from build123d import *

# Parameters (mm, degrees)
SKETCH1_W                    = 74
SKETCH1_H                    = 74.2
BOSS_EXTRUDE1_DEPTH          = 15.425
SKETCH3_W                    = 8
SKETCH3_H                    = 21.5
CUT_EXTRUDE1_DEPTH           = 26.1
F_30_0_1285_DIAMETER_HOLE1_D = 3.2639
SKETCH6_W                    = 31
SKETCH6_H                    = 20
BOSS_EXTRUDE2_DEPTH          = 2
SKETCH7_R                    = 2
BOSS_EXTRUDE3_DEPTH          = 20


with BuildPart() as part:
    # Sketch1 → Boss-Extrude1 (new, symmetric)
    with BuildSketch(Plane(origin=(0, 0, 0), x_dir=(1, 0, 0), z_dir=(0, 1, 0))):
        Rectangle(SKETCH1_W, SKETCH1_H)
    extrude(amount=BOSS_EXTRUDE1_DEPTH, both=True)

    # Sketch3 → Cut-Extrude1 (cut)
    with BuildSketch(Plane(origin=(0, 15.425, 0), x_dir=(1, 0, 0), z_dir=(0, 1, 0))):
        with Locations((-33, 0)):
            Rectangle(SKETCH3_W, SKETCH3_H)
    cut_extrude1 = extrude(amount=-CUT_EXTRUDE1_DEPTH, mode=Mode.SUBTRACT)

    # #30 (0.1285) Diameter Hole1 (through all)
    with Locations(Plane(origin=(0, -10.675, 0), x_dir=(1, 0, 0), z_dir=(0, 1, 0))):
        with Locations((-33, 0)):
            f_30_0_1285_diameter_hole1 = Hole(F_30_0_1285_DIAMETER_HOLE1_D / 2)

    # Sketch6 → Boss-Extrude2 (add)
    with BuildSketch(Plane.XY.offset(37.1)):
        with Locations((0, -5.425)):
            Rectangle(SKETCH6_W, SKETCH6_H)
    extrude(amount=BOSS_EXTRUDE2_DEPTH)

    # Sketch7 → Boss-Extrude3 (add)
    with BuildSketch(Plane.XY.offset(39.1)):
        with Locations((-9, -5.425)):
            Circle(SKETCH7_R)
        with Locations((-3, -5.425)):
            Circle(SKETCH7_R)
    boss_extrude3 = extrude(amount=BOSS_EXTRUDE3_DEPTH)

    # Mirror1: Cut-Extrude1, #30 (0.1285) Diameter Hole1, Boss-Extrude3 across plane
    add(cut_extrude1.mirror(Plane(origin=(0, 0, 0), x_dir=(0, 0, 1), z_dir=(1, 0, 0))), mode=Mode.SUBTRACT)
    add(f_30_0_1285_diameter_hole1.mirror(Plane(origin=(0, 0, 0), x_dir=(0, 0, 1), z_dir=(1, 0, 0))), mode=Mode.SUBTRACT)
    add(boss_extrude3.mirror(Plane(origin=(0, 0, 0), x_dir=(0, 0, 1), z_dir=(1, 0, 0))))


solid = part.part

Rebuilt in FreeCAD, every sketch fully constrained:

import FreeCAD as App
import Part
import Sketcher

V = App.Vector

doc = App.newDocument("Part")
body = doc.addObject("PartDesign::Body", "Body")

# Sketch on XZ plane
sketch1 = doc.addObject("Sketcher::SketchObject", "Sketch")
body.addObject(sketch1)
sketch1.AttachmentSupport = (doc.XZ_Plane, [""])
sketch1.MapMode = "FlatFace"
sketch1.addGeometry(Part.LineSegment(V(-37, -37, 0), V(-37, 37, 0)), False)
sketch1.addGeometry(Part.LineSegment(V(-37, 37, 0), V(37, 37, 0)), False)
sketch1.addGeometry(Part.LineSegment(V(37, 37, 0), V(37, -37, 0)), False)
sketch1.addGeometry(Part.LineSegment(V(37, -37, 0), V(-37, -37, 0)), False)
sketch1.addConstraint(Sketcher.Constraint("Coincident", 0, 2, 1, 1))
sketch1.addConstraint(Sketcher.Constraint("Coincident", 1, 2, 2, 1))
sketch1.addConstraint(Sketcher.Constraint("Coincident", 2, 2, 3, 1))
sketch1.addConstraint(Sketcher.Constraint("Coincident", 3, 2, 0, 1))
sketch1.addConstraint(Sketcher.Constraint("Vertical", 0))
sketch1.addConstraint(Sketcher.Constraint("Horizontal", 1))
sketch1.addConstraint(Sketcher.Constraint("Vertical", 2))
sketch1.addConstraint(Sketcher.Constraint("Horizontal", 3))
sketch1.addConstraint(Sketcher.Constraint("Symmetric", 0, 2, 2, 2, -1, 1))
sketch1.addConstraint(Sketcher.Constraint("DistanceX", 1, 1, 1, 2, 74.0))
sketch1.addConstraint(Sketcher.Constraint("DistanceY", 0, 1, 0, 2, 74.2))
pad1 = doc.addObject("PartDesign::Pad", "Pad")
body.addObject(pad1)
pad1.Profile = sketch1
pad1.Length = 30.85
pad1.Midplane = True

# Sketch on XZ plane
sketch2 = doc.addObject("Sketcher::SketchObject", "Sketch001")
body.addObject(sketch2)
sketch2.AttachmentSupport = (doc.XZ_Plane, [""])
sketch2.MapMode = "FlatFace"
sketch2.AttachmentOffset = App.Placement(V(0, 0, -15.425), App.Rotation())
sketch2.addGeometry(Part.LineSegment(V(-37, -11, 0), V(-37, 11, 0)), False)
sketch2.addGeometry(Part.LineSegment(V(-37, 11, 0), V(-29, 11, 0)), False)
sketch2.addGeometry(Part.LineSegment(V(-29, 11, 0), V(-29, -11, 0)), False)
sketch2.addGeometry(Part.LineSegment(V(-29, -11, 0), V(-37, -11, 0)), False)
sketch2.addConstraint(Sketcher.Constraint("Coincident", 0, 2, 1, 1))
sketch2.addConstraint(Sketcher.Constraint("Coincident", 1, 2, 2, 1))
sketch2.addConstraint(Sketcher.Constraint("Coincident", 2, 2, 3, 1))
sketch2.addConstraint(Sketcher.Constraint("Coincident", 3, 2, 0, 1))
sketch2.addConstraint(Sketcher.Constraint("Vertical", 0))
sketch2.addConstraint(Sketcher.Constraint("Horizontal", 1))
sketch2.addConstraint(Sketcher.Constraint("Vertical", 2))
sketch2.addConstraint(Sketcher.Constraint("Horizontal", 3))
sketch2.addConstraint(Sketcher.Constraint("DistanceX", 1, 1, 1, 2, 8.0))
sketch2.addConstraint(Sketcher.Constraint("DistanceY", 0, 1, 0, 2, 21.5))
sketch2.addConstraint(Sketcher.Constraint("DistanceX", 0, 2, -1, 1, 37.0))
sketch2.addConstraint(Sketcher.Constraint("DistanceY", -1, 1, 0, 2, 10.75))
pocket1 = doc.addObject("PartDesign::Pocket", "Pocket")
body.addObject(pocket1)
pocket1.Profile = sketch2
pocket1.Length = 26.1
pocket1.Reversed = True

# Sketch on XZ plane
sketch3 = doc.addObject("Sketcher::SketchObject", "Sketch002")
body.addObject(sketch3)
sketch3.AttachmentSupport = (doc.XZ_Plane, [""])
sketch3.MapMode = "FlatFace"
sketch3.AttachmentOffset = App.Placement(V(0, 0, 10.675), App.Rotation())
sketch3.addGeometry(Part.Circle(V(-33, 0, 0), V(0, 0, 1), 1.6), False)
sketch3.addConstraint(Sketcher.Constraint("PointOnObject", 0, 3, -1))
sketch3.addConstraint(Sketcher.Constraint("DistanceX", 0, 3, -1, 1, 33.0))
sketch3.addConstraint(Sketcher.Constraint("Diameter", 0, 3.2639))
doc.recompute()
hole = doc.addObject("PartDesign::Hole", "Hole")
body.addObject(hole)
hole.Profile = sketch3
hole.ThreadType = "None"
hole.Diameter = 3.2639
hole.DepthType = "ThroughAll"
hole.Reversed = True

# Sketch on XY plane
sketch4 = doc.addObject("Sketcher::SketchObject", "Sketch003")
body.addObject(sketch4)
sketch4.AttachmentSupport = (doc.XY_Plane, [""])
sketch4.MapMode = "FlatFace"
sketch4.AttachmentOffset = App.Placement(V(0, 0, 37.1), App.Rotation())
sketch4.addGeometry(Part.LineSegment(V(-16, 5, 0), V(-16, -15, 0)), False)
sketch4.addGeometry(Part.LineSegment(V(-16, -15, 0), V(16, -15, 0)), False)
sketch4.addGeometry(Part.LineSegment(V(16, -15, 0), V(16, 5, 0)), False)
sketch4.addGeometry(Part.LineSegment(V(16, 5, 0), V(-16, 5, 0)), False)
sketch4.addConstraint(Sketcher.Constraint("Coincident", 0, 2, 1, 1))
sketch4.addConstraint(Sketcher.Constraint("Coincident", 1, 2, 2, 1))
sketch4.addConstraint(Sketcher.Constraint("Coincident", 2, 2, 3, 1))
sketch4.addConstraint(Sketcher.Constraint("Coincident", 3, 2, 0, 1))
sketch4.addConstraint(Sketcher.Constraint("Vertical", 0))
sketch4.addConstraint(Sketcher.Constraint("Horizontal", 1))
sketch4.addConstraint(Sketcher.Constraint("Vertical", 2))
sketch4.addConstraint(Sketcher.Constraint("Horizontal", 3))
sketch4.addConstraint(Sketcher.Constraint("DistanceX", 1, 1, 1, 2, 31.0))
sketch4.addConstraint(Sketcher.Constraint("DistanceY", 0, 2, 0, 1, 20.0))
sketch4.addConstraint(Sketcher.Constraint("DistanceX", 0, 2, -1, 1, 15.5))
sketch4.addConstraint(Sketcher.Constraint("DistanceY", 0, 2, -1, 1, 15.425))
pad2 = doc.addObject("PartDesign::Pad", "Pad001")
body.addObject(pad2)
pad2.Profile = sketch4
pad2.Length = 2

# Sketch on XY plane
sketch5 = doc.addObject("Sketcher::SketchObject", "Sketch004")
body.addObject(sketch5)
sketch5.AttachmentSupport = (doc.XY_Plane, [""])
sketch5.MapMode = "FlatFace"
sketch5.AttachmentOffset = App.Placement(V(0, 0, 39.1), App.Rotation())
sketch5.addGeometry(Part.Circle(V(-9, -5.4, 0), V(0, 0, 1), 2), False)
sketch5.addGeometry(Part.Circle(V(-3, -5.4, 0), V(0, 0, 1), 2), False)
sketch5.addConstraint(Sketcher.Constraint("Equal", 0, 1))
sketch5.addConstraint(Sketcher.Constraint("Horizontal", 0, 3, 1, 3))
sketch5.addConstraint(Sketcher.Constraint("Diameter", 0, 4.0))
sketch5.addConstraint(Sketcher.Constraint("DistanceX", 0, 3, -1, 1, 9.0))
sketch5.addConstraint(Sketcher.Constraint("DistanceX", 1, 3, -1, 1, 3.0))
sketch5.addConstraint(Sketcher.Constraint("DistanceY", 0, 3, -1, 1, 5.425))
pad3 = doc.addObject("PartDesign::Pad", "Pad002")
body.addObject(pad3)
pad3.Profile = sketch5
pad3.Length = 20
doc.recompute()

mirrored = doc.addObject("PartDesign::Mirrored", "Mirrored")
body.addObject(mirrored)
mirrored.Originals = [pocket1, hole, pad3]
mirrored.MirrorPlane = (doc.YZ_Plane, [""])
body.Tip = mirrored

doc.recompute()
